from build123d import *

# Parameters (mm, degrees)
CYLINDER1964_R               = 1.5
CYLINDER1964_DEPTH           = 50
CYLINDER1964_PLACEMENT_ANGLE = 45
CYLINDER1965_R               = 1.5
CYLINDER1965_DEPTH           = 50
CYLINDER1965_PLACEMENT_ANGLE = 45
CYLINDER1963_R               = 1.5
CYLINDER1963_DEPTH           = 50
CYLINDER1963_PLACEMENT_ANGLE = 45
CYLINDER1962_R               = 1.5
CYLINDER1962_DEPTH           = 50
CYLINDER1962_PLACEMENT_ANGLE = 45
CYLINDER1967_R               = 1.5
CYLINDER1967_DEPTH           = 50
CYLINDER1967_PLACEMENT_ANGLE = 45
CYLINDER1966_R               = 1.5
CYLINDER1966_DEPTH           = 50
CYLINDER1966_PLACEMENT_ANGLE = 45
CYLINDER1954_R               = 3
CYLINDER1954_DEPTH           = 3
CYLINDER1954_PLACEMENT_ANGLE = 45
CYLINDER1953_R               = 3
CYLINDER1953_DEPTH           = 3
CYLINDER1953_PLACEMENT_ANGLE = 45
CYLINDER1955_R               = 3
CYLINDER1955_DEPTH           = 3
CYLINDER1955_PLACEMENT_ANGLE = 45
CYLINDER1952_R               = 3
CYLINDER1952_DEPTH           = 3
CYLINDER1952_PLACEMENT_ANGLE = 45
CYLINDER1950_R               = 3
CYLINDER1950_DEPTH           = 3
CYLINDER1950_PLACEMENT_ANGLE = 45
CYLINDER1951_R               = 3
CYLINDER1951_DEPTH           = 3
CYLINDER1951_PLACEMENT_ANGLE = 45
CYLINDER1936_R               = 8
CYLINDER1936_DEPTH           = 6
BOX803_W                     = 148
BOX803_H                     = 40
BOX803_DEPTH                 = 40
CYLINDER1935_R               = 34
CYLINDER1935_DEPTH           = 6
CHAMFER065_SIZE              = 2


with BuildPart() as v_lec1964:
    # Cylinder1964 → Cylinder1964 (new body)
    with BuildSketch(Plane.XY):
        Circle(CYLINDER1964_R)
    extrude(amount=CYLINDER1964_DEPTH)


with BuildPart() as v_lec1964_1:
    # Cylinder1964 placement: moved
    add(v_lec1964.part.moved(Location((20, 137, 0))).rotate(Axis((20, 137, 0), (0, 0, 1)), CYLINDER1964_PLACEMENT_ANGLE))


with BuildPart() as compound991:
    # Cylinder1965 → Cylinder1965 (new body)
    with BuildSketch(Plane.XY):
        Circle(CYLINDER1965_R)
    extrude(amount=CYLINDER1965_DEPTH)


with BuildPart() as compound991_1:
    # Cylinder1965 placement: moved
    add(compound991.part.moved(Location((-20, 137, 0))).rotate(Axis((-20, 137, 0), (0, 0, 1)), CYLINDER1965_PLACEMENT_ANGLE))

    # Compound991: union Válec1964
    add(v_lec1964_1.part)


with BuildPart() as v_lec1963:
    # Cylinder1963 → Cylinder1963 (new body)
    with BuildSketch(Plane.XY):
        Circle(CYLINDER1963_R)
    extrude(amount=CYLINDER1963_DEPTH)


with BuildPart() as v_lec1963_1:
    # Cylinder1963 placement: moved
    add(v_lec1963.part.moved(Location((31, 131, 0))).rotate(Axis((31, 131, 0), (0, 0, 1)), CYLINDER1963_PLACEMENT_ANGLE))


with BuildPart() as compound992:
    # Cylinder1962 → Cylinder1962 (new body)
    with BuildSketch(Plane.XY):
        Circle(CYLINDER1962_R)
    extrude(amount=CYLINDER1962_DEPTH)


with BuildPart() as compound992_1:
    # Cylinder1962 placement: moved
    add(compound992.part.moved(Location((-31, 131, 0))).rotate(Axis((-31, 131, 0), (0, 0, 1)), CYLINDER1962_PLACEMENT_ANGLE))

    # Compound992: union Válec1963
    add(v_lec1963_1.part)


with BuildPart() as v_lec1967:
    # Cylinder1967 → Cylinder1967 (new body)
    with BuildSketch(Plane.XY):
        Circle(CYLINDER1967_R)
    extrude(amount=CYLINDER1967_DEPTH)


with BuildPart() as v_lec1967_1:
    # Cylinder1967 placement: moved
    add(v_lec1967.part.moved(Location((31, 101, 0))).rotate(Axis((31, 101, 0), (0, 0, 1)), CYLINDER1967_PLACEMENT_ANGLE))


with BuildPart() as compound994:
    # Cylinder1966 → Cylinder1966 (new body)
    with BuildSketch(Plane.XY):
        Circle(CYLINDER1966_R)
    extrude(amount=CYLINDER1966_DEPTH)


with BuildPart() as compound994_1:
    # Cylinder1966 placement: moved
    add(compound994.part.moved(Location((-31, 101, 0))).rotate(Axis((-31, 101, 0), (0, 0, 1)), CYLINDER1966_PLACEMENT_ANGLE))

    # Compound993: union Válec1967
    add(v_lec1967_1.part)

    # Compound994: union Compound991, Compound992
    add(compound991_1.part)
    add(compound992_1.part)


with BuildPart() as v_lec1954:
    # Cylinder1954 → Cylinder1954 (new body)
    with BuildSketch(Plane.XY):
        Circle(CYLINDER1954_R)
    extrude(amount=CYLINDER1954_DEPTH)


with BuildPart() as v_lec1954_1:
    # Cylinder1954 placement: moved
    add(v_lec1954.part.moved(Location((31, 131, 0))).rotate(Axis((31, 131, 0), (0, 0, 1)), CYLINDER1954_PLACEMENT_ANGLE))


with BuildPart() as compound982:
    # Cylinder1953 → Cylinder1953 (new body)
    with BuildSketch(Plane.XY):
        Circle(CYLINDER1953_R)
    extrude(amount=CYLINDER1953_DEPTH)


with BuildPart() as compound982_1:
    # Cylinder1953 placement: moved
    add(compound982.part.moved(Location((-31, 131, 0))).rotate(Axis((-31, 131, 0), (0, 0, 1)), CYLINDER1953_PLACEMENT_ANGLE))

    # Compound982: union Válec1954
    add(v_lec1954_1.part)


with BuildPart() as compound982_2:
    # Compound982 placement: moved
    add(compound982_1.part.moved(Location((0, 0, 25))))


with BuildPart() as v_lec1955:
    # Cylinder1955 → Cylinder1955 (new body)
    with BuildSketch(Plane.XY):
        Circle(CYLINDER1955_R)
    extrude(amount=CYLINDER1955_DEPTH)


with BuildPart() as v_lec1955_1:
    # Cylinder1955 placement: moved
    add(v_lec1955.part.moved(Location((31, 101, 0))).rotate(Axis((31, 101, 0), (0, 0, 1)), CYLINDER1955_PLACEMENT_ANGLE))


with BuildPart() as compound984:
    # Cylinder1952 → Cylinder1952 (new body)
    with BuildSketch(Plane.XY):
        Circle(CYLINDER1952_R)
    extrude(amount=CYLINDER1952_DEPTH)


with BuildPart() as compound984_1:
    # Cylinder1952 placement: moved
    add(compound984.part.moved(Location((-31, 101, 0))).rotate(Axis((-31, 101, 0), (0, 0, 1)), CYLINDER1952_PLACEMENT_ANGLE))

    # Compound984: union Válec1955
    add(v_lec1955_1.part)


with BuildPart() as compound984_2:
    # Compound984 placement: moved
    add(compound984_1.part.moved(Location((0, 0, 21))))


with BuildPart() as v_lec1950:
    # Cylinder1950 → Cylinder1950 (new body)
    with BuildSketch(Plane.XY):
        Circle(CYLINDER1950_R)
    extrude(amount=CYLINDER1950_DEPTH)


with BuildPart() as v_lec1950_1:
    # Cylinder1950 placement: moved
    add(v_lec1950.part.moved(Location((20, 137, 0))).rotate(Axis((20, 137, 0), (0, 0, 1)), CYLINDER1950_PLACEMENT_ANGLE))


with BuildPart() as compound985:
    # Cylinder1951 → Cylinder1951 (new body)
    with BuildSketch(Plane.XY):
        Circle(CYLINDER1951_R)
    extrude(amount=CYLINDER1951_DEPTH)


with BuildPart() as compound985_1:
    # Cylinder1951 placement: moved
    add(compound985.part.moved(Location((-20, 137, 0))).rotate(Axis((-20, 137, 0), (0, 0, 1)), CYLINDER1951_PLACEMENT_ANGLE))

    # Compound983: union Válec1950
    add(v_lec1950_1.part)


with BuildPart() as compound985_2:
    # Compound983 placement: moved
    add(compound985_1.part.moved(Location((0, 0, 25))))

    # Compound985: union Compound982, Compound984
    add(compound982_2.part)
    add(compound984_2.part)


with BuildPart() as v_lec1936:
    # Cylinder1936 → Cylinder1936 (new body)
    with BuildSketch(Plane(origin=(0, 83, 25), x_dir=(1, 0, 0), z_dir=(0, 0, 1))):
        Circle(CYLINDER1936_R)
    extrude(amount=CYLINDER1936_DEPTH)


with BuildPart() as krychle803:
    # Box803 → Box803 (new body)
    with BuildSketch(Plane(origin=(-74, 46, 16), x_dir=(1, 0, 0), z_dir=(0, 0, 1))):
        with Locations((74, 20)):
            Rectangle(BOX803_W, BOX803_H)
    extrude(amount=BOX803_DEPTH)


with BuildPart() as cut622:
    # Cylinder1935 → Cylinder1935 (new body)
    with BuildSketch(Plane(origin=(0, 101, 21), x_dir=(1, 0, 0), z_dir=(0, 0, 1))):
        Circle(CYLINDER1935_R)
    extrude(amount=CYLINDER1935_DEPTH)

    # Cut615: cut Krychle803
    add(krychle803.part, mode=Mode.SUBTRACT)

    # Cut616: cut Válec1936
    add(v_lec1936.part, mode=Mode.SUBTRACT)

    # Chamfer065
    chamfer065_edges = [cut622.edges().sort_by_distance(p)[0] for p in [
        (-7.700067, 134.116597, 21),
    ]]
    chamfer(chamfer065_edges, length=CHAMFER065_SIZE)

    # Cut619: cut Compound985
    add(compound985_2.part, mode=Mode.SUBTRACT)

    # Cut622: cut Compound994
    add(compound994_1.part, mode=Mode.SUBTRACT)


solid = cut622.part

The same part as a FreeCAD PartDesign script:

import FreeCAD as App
import Part
import Sketcher
Q = App.Units.Quantity


def edges_at(feature, points):
    """Names of the edges that pass closest to the given points."""
    edges = feature.Shape.Edges
    near = lambda p: min(range(len(edges)), key=lambda i: edges[i].distToShape(Part.Vertex(*p))[0])
    return sorted({f"Edge{near(p) + 1}" for p in points})

doc = App.newDocument("Part")
body = doc.addObject("PartDesign::Body", "Body")

# Sketch on XY plane
sketch1 = body.newObject("Sketcher::SketchObject", "Sketch")
sketch1.AttachmentSupport = (doc.getObject("XY_Plane"), [""])
sketch1.MapMode = "FlatFace"
sketch1.addGeometry(Part.Circle(App.Vector(0, 0, 0), App.Vector(0, 0, 1), 1.5), False)
sketch1.addConstraint([
    Sketcher.Constraint("Coincident", 0, 3, -1, 1),
    Sketcher.Constraint("Diameter", 0, Q("3 mm")),
])
pad1 = body.newObject("PartDesign::Pad", "Pad")
pad1.Profile = sketch1
pad1.Length = 50
body2 = doc.addObject("PartDesign::Body", "Body001")
doc.recompute()

body.Placement = App.Placement(App.Vector(20, 137, 0), App.Rotation(App.Vector(0, 0, 1), 45))
boolean = body2.newObject("PartDesign::Boolean", "Boolean")
boolean.Type = "Fuse"
boolean.addObjects([body])
body3 = doc.addObject("PartDesign::Body", "Body002")

# Sketch on XY plane
sketch2 = body3.newObject("Sketcher::SketchObject", "Sketch001")
sketch2.AttachmentSupport = (doc.getObject("XY_Plane002"), [""])
sketch2.MapMode = "FlatFace"
sketch2.addGeometry(Part.Circle(App.Vector(0, 0, 0), App.Vector(0, 0, 1), 1.5), False)
sketch2.addConstraint([
    Sketcher.Constraint("Coincident", 0, 3, -1, 1),
    Sketcher.Constraint("Diameter", 0, Q("3 mm")),
])
pad2 = body3.newObject("PartDesign::Pad", "Pad001")
pad2.Profile = sketch2
pad2.Length = 50
body4 = doc.addObject("PartDesign::Body", "Body003")
body4.AllowCompound = True
doc.recompute()

body3.Placement = App.Placement(App.Vector(-20, 137, 0), App.Rotation(App.Vector(0, 0, 1), 45))
boolean2 = body4.newObject("PartDesign::Boolean", "Boolean001")
boolean2.Type = "Fuse"
boolean2.addObjects([body3])
doc.recompute()

boolean3 = body4.newObject("PartDesign::Boolean", "Boolean002")
boolean3.Type = "Fuse"
boolean3.addObjects([body2])
body5 = doc.addObject("PartDesign::Body", "Body004")

# Sketch on XY plane
sketch3 = body5.newObject("Sketcher::SketchObject", "Sketch002")
sketch3.AttachmentSupport = (doc.getObject("XY_Plane004"), [""])
sketch3.MapMode = "FlatFace"
sketch3.addGeometry(Part.Circle(App.Vector(0, 0, 0), App.Vector(0, 0, 1), 1.5), False)
sketch3.addConstraint([
    Sketcher.Constraint("Coincident", 0, 3, -1, 1),
    Sketcher.Constraint("Diameter", 0, Q("3 mm")),
])
pad3 = body5.newObject("PartDesign::Pad", "Pad002")
pad3.Profile = sketch3
pad3.Length = 50
body6 = doc.addObject("PartDesign::Body", "Body005")
doc.recompute()

body5.Placement = App.Placement(App.Vector(31, 131, 0), App.Rotation(App.Vector(0, 0, 1), 45))
boolean4 = body6.newObject("PartDesign::Boolean", "Boolean003")
boolean4.Type = "Fuse"
boolean4.addObjects([body5])
body7 = doc.addObject("PartDesign::Body", "Body006")

# Sketch on XY plane
sketch4 = body7.newObject("Sketcher::SketchObject", "Sketch003")
sketch4.AttachmentSupport = (doc.getObject("XY_Plane006"), [""])
sketch4.MapMode = "FlatFace"
sketch4.addGeometry(Part.Circle(App.Vector(0, 0, 0), App.Vector(0, 0, 1), 1.5), False)
sketch4.addConstraint([
    Sketcher.Constraint("Coincident", 0, 3, -1, 1),
    Sketcher.Constraint("Diameter", 0, Q("3 mm")),
])
pad4 = body7.newObject("PartDesign::Pad", "Pad003")
pad4.Profile = sketch4
pad4.Length = 50
body8 = doc.addObject("PartDesign::Body", "Body007")
body8.AllowCompound = True
doc.recompute()

body7.Placement = App.Placement(App.Vector(-31, 131, 0), App.Rotation(App.Vector(0, 0, 1), 45))
boolean5 = body8.newObject("PartDesign::Boolean", "Boolean004")
boolean5.Type = "Fuse"
boolean5.addObjects([body7])
doc.recompute()

boolean6 = body8.newObject("PartDesign::Boolean", "Boolean005")
boolean6.Type = "Fuse"
boolean6.addObjects([body6])
body9 = doc.addObject("PartDesign::Body", "Body008")

# Sketch on XY plane
sketch5 = body9.newObject("Sketcher::SketchObject", "Sketch004")
sketch5.AttachmentSupport = (doc.getObject("XY_Plane008"), [""])
sketch5.MapMode = "FlatFace"
sketch5.addGeometry(Part.Circle(App.Vector(0, 0, 0), App.Vector(0, 0, 1), 1.5), False)
sketch5.addConstraint([
    Sketcher.Constraint("Coincident", 0, 3, -1, 1),
    Sketcher.Constraint("Diameter", 0, Q("3 mm")),
])
pad5 = body9.newObject("PartDesign::Pad", "Pad004")
pad5.Profile = sketch5
pad5.Length = 50
body10 = doc.addObject("PartDesign::Body", "Body009")
doc.recompute()

body9.Placement = App.Placement(App.Vector(31, 101, 0), App.Rotation(App.Vector(0, 0, 1), 45))
boolean7 = body10.newObject("PartDesign::Boolean", "Boolean006")
boolean7.Type = "Fuse"
boolean7.addObjects([body9])
body11 = doc.addObject("PartDesign::Body", "Body010")

# Sketch on XY plane
sketch6 = body11.newObject("Sketcher::SketchObject", "Sketch005")
sketch6.AttachmentSupport = (doc.getObject("XY_Plane010"), [""])
sketch6.MapMode = "FlatFace"
sketch6.addGeometry(Part.Circle(App.Vector(0, 0, 0), App.Vector(0, 0, 1), 1.5), False)
sketch6.addConstraint([
    Sketcher.Constraint("Coincident", 0, 3, -1, 1),
    Sketcher.Constraint("Diameter", 0, Q("3 mm")),
])
pad6 = body11.newObject("PartDesign::Pad", "Pad005")
pad6.Profile = sketch6
pad6.Length = 50
body12 = doc.addObject("PartDesign::Body", "Body011")
body12.AllowCompound = True
doc.recompute()

body11.Placement = App.Placement(App.Vector(-31, 101, 0), App.Rotation(App.Vector(0, 0, 1), 45))
boolean8 = body12.newObject("PartDesign::Boolean", "Boolean007")
boolean8.Type = "Fuse"
boolean8.addObjects([body11])
doc.recompute()

boolean9 = body12.newObject("PartDesign::Boolean", "Boolean008")
boolean9.Type = "Fuse"
boolean9.addObjects([body10])
doc.recompute()

boolean10 = body12.newObject("PartDesign::Boolean", "Boolean009")
boolean10.Type = "Fuse"
boolean10.addObjects([body4])
doc.recompute()

boolean11 = body12.newObject("PartDesign::Boolean", "Boolean010")
boolean11.Type = "Fuse"
boolean11.addObjects([body8])
body13 = doc.addObject("PartDesign::Body", "Body012")

# Sketch on XY plane
sketch7 = body13.newObject("Sketcher::SketchObject", "Sketch006")
sketch7.AttachmentSupport = (doc.getObject("XY_Plane012"), [""])
sketch7.MapMode = "FlatFace"
sketch7.addGeometry(Part.Circle(App.Vector(0, 0, 0), App.Vector(0, 0, 1), 3), False)
sketch7.addConstraint([
    Sketcher.Constraint("Coincident", 0, 3, -1, 1),
    Sketcher.Constraint("Diameter", 0, Q("6 mm")),
])
pad7 = body13.newObject("PartDesign::Pad", "Pad006")
pad7.Profile = sketch7
pad7.Length = 3
body14 = doc.addObject("PartDesign::Body", "Body013")
doc.recompute()

body13.Placement = App.Placement(App.Vector(31, 131, 0), App.Rotation(App.Vector(0, 0, 1), 45))
boolean12 = body14.newObject("PartDesign::Boolean", "Boolean011")
boolean12.Type = "Fuse"
boolean12.addObjects([body13])
body15 = doc.addObject("PartDesign::Body", "Body014")

# Sketch on XY plane
sketch8 = body15.newObject("Sketcher::SketchObject", "Sketch007")
sketch8.AttachmentSupport = (doc.getObject("XY_Plane014"), [""])
sketch8.MapMode = "FlatFace"
sketch8.addGeometry(Part.Circle(App.Vector(0, 0, 0), App.Vector(0, 0, 1), 3), False)
sketch8.addConstraint([
    Sketcher.Constraint("Coincident", 0, 3, -1, 1),
    Sketcher.Constraint("Diameter", 0, Q("6 mm")),
])
pad8 = body15.newObject("PartDesign::Pad", "Pad007")
pad8.Profile = sketch8
pad8.Length = 3
body16 = doc.addObject("PartDesign::Body", "Body015")
body16.AllowCompound = True
doc.recompute()

body15.Placement = App.Placement(App.Vector(-31, 131, 0), App.Rotation(App.Vector(0, 0, 1), 45))
boolean13 = body16.newObject("PartDesign::Boolean", "Boolean012")
boolean13.Type = "Fuse"
boolean13.addObjects([body15])
doc.recompute()

boolean14 = body16.newObject("PartDesign::Boolean", "Boolean013")
boolean14.Type = "Fuse"
boolean14.addObjects([body14])
body17 = doc.addObject("PartDesign::Body", "Body016")
body17.AllowCompound = True
doc.recompute()

body16.Placement = App.Placement(App.Vector(0, 0, 25), App.Rotation(App.Vector(0, 0, 1), 0))
boolean15 = body17.newObject("PartDesign::Boolean", "Boolean014")
boolean15.Type = "Fuse"
boolean15.addObjects([body16])
body18 = doc.addObject("PartDesign::Body", "Body017")

# Sketch on XY plane
sketch9 = body18.newObject("Sketcher::SketchObject", "Sketch008")
sketch9.AttachmentSupport = (doc.getObject("XY_Plane017"), [""])
sketch9.MapMode = "FlatFace"
sketch9.addGeometry(Part.Circle(App.Vector(0, 0, 0), App.Vector(0, 0, 1), 3), False)
sketch9.addConstraint([
    Sketcher.Constraint("Coincident", 0, 3, -1, 1),
    Sketcher.Constraint("Diameter", 0, Q("6 mm")),
])
pad9 = body18.newObject("PartDesign::Pad", "Pad008")
pad9.Profile = sketch9
pad9.Length = 3
body19 = doc.addObject("PartDesign::Body", "Body018")
doc.recompute()

body18.Placement = App.Placement(App.Vector(31, 101, 0), App.Rotation(App.Vector(0, 0, 1), 45))
boolean16 = body19.newObject("PartDesign::Boolean", "Boolean015")
boolean16.Type = "Fuse"
boolean16.addObjects([body18])
body20 = doc.addObject("PartDesign::Body", "Body019")

# Sketch on XY plane
sketch10 = body20.newObject("Sketcher::SketchObject", "Sketch009")
sketch10.AttachmentSupport = (doc.getObject("XY_Plane019"), [""])
sketch10.MapMode = "FlatFace"
sketch10.addGeometry(Part.Circle(App.Vector(0, 0, 0), App.Vector(0, 0, 1), 3), False)
sketch10.addConstraint([
    Sketcher.Constraint("Coincident", 0, 3, -1, 1),
    Sketcher.Constraint("Diameter", 0, Q("6 mm")),
])
pad10 = body20.newObject("PartDesign::Pad", "Pad009")
pad10.Profile = sketch10
pad10.Length = 3
body21 = doc.addObject("PartDesign::Body", "Body020")
body21.AllowCompound = True
doc.recompute()

body20.Placement = App.Placement(App.Vector(-31, 101, 0), App.Rotation(App.Vector(0, 0, 1), 45))
boolean17 = body21.newObject("PartDesign::Boolean", "Boolean016")
boolean17.Type = "Fuse"
boolean17.addObjects([body20])
doc.recompute()

boolean18 = body21.newObject("PartDesign::Boolean", "Boolean017")
boolean18.Type = "Fuse"
boolean18.addObjects([body19])
body22 = doc.addObject("PartDesign::Body", "Body021")
body22.AllowCompound = True
doc.recompute()

body21.Placement = App.Placement(App.Vector(0, 0, 21), App.Rotation(App.Vector(0, 0, 1), 0))
boolean19 = body22.newObject("PartDesign::Boolean", "Boolean018")
boolean19.Type = "Fuse"
boolean19.addObjects([body21])
body23 = doc.addObject("PartDesign::Body", "Body022")

# Sketch on XY plane
sketch11 = body23.newObject("Sketcher::SketchObject", "Sketch010")
sketch11.AttachmentSupport = (doc.getObject("XY_Plane022"), [""])
sketch11.MapMode = "FlatFace"
sketch11.addGeometry(Part.Circle(App.Vector(0, 0, 0), App.Vector(0, 0, 1), 3), False)
sketch11.addConstraint([
    Sketcher.Constraint("Coincident", 0, 3, -1, 1),
    Sketcher.Constraint("Diameter", 0, Q("6 mm")),
])
pad11 = body23.newObject("PartDesign::Pad", "Pad010")
pad11.Profile = sketch11
pad11.Length = 3
body24 = doc.addObject("PartDesign::Body", "Body023")
doc.recompute()

body23.Placement = App.Placement(App.Vector(20, 137, 0), App.Rotation(App.Vector(0, 0, 1), 45))
boolean20 = body24.newObject("PartDesign::Boolean", "Boolean019")
boolean20.Type = "Fuse"
boolean20.addObjects([body23])
body25 = doc.addObject("PartDesign::Body", "Body024")

# Sketch on XY plane
sketch12 = body25.newObject("Sketcher::SketchObject", "Sketch011")
sketch12.AttachmentSupport = (doc.getObject("XY_Plane024"), [""])
sketch12.MapMode = "FlatFace"
sketch12.addGeometry(Part.Circle(App.Vector(0, 0, 0), App.Vector(0, 0, 1), 3), False)
sketch12.addConstraint([
    Sketcher.Constraint("Coincident", 0, 3, -1, 1),
    Sketcher.Constraint("Diameter", 0, Q("6 mm")),
])
pad12 = body25.newObject("PartDesign::Pad", "Pad011")
pad12.Profile = sketch12
pad12.Length = 3
body26 = doc.addObject("PartDesign::Body", "Body025")
body26.AllowCompound = True
doc.recompute()

body25.Placement = App.Placement(App.Vector(-20, 137, 0), App.Rotation(App.Vector(0, 0, 1), 45))
boolean21 = body26.newObject("PartDesign::Boolean", "Boolean020")
boolean21.Type = "Fuse"
boolean21.addObjects([body25])
doc.recompute()

boolean22 = body26.newObject("PartDesign::Boolean", "Boolean021")
boolean22.Type = "Fuse"
boolean22.addObjects([body24])
body27 = doc.addObject("PartDesign::Body", "Body026")
body27.AllowCompound = True
doc.recompute()

body26.Placement = App.Placement(App.Vector(0, 0, 25), App.Rotation(App.Vector(0, 0, 1), 0))
boolean23 = body27.newObject("PartDesign::Boolean", "Boolean022")
boolean23.Type = "Fuse"
boolean23.addObjects([body26])
doc.recompute()

boolean24 = body27.newObject("PartDesign::Boolean", "Boolean023")
boolean24.Type = "Fuse"
boolean24.addObjects([body17])
doc.recompute()

boolean25 = body27.newObject("PartDesign::Boolean", "Boolean024")
boolean25.Type = "Fuse"
boolean25.addObjects([body22])
body28 = doc.addObject("PartDesign::Body", "Body027")

# Sketch on XY plane
sketch13 = body28.newObject("Sketcher::SketchObject", "Sketch012")
sketch13.AttachmentSupport = (doc.getObject("XY_Plane027"), [""])
sketch13.MapMode = "FlatFace"
sketch13.AttachmentOffset = App.Placement(App.Vector(0, 0, 25), App.Rotation())
sketch13.addGeometry(Part.Circle(App.Vector(0, 83, 0), App.Vector(0, 0, 1), 8), False)
sketch13.addConstraint([
    Sketcher.Constraint("PointOnObject", 0, 3, -2),
    Sketcher.Constraint("Diameter", 0, Q("16 mm")),
    Sketcher.Constraint("DistanceY", -1, 1, 0, 3, Q("83 mm")),
])
pad13 = body28.newObject("PartDesign::Pad", "Pad012")
pad13.Profile = sketch13
pad13.Length = 6
body29 = doc.addObject("PartDesign::Body", "Body028")

# Sketch on XY plane
sketch14 = body29.newObject("Sketcher::SketchObject", "Sketch013")
sketch14.AttachmentSupport = (doc.getObject("XY_Plane028"), [""])
sketch14.MapMode = "FlatFace"
sketch14.AttachmentOffset = App.Placement(App.Vector(0, 0, 16), App.Rotation())
sketch14.addGeometry([
    Part.LineSegment(App.Vector(-74, 86, 0), App.Vector(-74, 46, 0)),
    Part.LineSegment(App.Vector(-74, 46, 0), App.Vector(74, 46, 0)),
    Part.LineSegment(App.Vector(74, 46, 0), App.Vector(74, 86, 0)),
    Part.LineSegment(App.Vector(74, 86, 0), App.Vector(-74, 86, 0)),
], False)
sketch14.addConstraint([
    Sketcher.Constraint("Coincident", 0, 2, 1, 1),
    Sketcher.Constraint("Coincident", 1, 2, 2, 1),
    Sketcher.Constraint("Coincident", 2, 2, 3, 1),
    Sketcher.Constraint("Coincident", 3, 2, 0, 1),
    Sketcher.Constraint("Vertical", 0),
    Sketcher.Constraint("Horizontal", 1),
    Sketcher.Constraint("Vertical", 2),
    Sketcher.Constraint("Horizontal", 3),
    Sketcher.Constraint("DistanceX", 1, 1, 1, 2, Q("148 mm")),
    Sketcher.Constraint("DistanceY", 0, 2, 0, 1, Q("40 mm")),
    Sketcher.Constraint("DistanceX", 0, 2, -1, 1, Q("74 mm")),
    Sketcher.Constraint("DistanceY", -1, 1, 0, 2, Q("46 mm")),
])
pad14 = body29.newObject("PartDesign::Pad", "Pad013")
pad14.Profile = sketch14
pad14.Length = 40
body30 = doc.addObject("PartDesign::Body", "Body029")

# Sketch on XY plane
sketch15 = body30.newObject("Sketcher::SketchObject", "Sketch014")
sketch15.AttachmentSupport = (doc.getObject("XY_Plane029"), [""])
sketch15.MapMode = "FlatFace"
sketch15.AttachmentOffset = App.Placement(App.Vector(0, 0, 21), App.Rotation())
sketch15.addGeometry(Part.Circle(App.Vector(0, 101, 0), App.Vector(0, 0, 1), 34), False)
sketch15.addConstraint([
    Sketcher.Constraint("PointOnObject", 0, 3, -2),
    Sketcher.Constraint("Diameter", 0, Q("68 mm")),
    Sketcher.Constraint("DistanceY", -1, 1, 0, 3, Q("101 mm")),
])
pad15 = body30.newObject("PartDesign::Pad", "Pad014")
pad15.Profile = sketch15
pad15.Length = 6
doc.recompute()

boolean26 = body30.newObject("PartDesign::Boolean", "Boolean025")
boolean26.Type = "Cut"
boolean26.addObjects([body29])
doc.recompute()

boolean27 = body30.newObject("PartDesign::Boolean", "Boolean026")
boolean27.Type = "Cut"
boolean27.addObjects([body28])
doc.recompute()

chamfer = body30.newObject("PartDesign::Chamfer", "Chamfer")
chamfer.Base = (boolean27, edges_at(boolean27, [(0, 135, 21)]))
chamfer.Size = 2
doc.recompute()

boolean28 = body30.newObject("PartDesign::Boolean", "Boolean027")
boolean28.Type = "Cut"
boolean28.addObjects([body27])
doc.recompute()

boolean29 = body30.newObject("PartDesign::Boolean", "Boolean028")
boolean29.Type = "Cut"
boolean29.addObjects([body12])

doc.recompute()
